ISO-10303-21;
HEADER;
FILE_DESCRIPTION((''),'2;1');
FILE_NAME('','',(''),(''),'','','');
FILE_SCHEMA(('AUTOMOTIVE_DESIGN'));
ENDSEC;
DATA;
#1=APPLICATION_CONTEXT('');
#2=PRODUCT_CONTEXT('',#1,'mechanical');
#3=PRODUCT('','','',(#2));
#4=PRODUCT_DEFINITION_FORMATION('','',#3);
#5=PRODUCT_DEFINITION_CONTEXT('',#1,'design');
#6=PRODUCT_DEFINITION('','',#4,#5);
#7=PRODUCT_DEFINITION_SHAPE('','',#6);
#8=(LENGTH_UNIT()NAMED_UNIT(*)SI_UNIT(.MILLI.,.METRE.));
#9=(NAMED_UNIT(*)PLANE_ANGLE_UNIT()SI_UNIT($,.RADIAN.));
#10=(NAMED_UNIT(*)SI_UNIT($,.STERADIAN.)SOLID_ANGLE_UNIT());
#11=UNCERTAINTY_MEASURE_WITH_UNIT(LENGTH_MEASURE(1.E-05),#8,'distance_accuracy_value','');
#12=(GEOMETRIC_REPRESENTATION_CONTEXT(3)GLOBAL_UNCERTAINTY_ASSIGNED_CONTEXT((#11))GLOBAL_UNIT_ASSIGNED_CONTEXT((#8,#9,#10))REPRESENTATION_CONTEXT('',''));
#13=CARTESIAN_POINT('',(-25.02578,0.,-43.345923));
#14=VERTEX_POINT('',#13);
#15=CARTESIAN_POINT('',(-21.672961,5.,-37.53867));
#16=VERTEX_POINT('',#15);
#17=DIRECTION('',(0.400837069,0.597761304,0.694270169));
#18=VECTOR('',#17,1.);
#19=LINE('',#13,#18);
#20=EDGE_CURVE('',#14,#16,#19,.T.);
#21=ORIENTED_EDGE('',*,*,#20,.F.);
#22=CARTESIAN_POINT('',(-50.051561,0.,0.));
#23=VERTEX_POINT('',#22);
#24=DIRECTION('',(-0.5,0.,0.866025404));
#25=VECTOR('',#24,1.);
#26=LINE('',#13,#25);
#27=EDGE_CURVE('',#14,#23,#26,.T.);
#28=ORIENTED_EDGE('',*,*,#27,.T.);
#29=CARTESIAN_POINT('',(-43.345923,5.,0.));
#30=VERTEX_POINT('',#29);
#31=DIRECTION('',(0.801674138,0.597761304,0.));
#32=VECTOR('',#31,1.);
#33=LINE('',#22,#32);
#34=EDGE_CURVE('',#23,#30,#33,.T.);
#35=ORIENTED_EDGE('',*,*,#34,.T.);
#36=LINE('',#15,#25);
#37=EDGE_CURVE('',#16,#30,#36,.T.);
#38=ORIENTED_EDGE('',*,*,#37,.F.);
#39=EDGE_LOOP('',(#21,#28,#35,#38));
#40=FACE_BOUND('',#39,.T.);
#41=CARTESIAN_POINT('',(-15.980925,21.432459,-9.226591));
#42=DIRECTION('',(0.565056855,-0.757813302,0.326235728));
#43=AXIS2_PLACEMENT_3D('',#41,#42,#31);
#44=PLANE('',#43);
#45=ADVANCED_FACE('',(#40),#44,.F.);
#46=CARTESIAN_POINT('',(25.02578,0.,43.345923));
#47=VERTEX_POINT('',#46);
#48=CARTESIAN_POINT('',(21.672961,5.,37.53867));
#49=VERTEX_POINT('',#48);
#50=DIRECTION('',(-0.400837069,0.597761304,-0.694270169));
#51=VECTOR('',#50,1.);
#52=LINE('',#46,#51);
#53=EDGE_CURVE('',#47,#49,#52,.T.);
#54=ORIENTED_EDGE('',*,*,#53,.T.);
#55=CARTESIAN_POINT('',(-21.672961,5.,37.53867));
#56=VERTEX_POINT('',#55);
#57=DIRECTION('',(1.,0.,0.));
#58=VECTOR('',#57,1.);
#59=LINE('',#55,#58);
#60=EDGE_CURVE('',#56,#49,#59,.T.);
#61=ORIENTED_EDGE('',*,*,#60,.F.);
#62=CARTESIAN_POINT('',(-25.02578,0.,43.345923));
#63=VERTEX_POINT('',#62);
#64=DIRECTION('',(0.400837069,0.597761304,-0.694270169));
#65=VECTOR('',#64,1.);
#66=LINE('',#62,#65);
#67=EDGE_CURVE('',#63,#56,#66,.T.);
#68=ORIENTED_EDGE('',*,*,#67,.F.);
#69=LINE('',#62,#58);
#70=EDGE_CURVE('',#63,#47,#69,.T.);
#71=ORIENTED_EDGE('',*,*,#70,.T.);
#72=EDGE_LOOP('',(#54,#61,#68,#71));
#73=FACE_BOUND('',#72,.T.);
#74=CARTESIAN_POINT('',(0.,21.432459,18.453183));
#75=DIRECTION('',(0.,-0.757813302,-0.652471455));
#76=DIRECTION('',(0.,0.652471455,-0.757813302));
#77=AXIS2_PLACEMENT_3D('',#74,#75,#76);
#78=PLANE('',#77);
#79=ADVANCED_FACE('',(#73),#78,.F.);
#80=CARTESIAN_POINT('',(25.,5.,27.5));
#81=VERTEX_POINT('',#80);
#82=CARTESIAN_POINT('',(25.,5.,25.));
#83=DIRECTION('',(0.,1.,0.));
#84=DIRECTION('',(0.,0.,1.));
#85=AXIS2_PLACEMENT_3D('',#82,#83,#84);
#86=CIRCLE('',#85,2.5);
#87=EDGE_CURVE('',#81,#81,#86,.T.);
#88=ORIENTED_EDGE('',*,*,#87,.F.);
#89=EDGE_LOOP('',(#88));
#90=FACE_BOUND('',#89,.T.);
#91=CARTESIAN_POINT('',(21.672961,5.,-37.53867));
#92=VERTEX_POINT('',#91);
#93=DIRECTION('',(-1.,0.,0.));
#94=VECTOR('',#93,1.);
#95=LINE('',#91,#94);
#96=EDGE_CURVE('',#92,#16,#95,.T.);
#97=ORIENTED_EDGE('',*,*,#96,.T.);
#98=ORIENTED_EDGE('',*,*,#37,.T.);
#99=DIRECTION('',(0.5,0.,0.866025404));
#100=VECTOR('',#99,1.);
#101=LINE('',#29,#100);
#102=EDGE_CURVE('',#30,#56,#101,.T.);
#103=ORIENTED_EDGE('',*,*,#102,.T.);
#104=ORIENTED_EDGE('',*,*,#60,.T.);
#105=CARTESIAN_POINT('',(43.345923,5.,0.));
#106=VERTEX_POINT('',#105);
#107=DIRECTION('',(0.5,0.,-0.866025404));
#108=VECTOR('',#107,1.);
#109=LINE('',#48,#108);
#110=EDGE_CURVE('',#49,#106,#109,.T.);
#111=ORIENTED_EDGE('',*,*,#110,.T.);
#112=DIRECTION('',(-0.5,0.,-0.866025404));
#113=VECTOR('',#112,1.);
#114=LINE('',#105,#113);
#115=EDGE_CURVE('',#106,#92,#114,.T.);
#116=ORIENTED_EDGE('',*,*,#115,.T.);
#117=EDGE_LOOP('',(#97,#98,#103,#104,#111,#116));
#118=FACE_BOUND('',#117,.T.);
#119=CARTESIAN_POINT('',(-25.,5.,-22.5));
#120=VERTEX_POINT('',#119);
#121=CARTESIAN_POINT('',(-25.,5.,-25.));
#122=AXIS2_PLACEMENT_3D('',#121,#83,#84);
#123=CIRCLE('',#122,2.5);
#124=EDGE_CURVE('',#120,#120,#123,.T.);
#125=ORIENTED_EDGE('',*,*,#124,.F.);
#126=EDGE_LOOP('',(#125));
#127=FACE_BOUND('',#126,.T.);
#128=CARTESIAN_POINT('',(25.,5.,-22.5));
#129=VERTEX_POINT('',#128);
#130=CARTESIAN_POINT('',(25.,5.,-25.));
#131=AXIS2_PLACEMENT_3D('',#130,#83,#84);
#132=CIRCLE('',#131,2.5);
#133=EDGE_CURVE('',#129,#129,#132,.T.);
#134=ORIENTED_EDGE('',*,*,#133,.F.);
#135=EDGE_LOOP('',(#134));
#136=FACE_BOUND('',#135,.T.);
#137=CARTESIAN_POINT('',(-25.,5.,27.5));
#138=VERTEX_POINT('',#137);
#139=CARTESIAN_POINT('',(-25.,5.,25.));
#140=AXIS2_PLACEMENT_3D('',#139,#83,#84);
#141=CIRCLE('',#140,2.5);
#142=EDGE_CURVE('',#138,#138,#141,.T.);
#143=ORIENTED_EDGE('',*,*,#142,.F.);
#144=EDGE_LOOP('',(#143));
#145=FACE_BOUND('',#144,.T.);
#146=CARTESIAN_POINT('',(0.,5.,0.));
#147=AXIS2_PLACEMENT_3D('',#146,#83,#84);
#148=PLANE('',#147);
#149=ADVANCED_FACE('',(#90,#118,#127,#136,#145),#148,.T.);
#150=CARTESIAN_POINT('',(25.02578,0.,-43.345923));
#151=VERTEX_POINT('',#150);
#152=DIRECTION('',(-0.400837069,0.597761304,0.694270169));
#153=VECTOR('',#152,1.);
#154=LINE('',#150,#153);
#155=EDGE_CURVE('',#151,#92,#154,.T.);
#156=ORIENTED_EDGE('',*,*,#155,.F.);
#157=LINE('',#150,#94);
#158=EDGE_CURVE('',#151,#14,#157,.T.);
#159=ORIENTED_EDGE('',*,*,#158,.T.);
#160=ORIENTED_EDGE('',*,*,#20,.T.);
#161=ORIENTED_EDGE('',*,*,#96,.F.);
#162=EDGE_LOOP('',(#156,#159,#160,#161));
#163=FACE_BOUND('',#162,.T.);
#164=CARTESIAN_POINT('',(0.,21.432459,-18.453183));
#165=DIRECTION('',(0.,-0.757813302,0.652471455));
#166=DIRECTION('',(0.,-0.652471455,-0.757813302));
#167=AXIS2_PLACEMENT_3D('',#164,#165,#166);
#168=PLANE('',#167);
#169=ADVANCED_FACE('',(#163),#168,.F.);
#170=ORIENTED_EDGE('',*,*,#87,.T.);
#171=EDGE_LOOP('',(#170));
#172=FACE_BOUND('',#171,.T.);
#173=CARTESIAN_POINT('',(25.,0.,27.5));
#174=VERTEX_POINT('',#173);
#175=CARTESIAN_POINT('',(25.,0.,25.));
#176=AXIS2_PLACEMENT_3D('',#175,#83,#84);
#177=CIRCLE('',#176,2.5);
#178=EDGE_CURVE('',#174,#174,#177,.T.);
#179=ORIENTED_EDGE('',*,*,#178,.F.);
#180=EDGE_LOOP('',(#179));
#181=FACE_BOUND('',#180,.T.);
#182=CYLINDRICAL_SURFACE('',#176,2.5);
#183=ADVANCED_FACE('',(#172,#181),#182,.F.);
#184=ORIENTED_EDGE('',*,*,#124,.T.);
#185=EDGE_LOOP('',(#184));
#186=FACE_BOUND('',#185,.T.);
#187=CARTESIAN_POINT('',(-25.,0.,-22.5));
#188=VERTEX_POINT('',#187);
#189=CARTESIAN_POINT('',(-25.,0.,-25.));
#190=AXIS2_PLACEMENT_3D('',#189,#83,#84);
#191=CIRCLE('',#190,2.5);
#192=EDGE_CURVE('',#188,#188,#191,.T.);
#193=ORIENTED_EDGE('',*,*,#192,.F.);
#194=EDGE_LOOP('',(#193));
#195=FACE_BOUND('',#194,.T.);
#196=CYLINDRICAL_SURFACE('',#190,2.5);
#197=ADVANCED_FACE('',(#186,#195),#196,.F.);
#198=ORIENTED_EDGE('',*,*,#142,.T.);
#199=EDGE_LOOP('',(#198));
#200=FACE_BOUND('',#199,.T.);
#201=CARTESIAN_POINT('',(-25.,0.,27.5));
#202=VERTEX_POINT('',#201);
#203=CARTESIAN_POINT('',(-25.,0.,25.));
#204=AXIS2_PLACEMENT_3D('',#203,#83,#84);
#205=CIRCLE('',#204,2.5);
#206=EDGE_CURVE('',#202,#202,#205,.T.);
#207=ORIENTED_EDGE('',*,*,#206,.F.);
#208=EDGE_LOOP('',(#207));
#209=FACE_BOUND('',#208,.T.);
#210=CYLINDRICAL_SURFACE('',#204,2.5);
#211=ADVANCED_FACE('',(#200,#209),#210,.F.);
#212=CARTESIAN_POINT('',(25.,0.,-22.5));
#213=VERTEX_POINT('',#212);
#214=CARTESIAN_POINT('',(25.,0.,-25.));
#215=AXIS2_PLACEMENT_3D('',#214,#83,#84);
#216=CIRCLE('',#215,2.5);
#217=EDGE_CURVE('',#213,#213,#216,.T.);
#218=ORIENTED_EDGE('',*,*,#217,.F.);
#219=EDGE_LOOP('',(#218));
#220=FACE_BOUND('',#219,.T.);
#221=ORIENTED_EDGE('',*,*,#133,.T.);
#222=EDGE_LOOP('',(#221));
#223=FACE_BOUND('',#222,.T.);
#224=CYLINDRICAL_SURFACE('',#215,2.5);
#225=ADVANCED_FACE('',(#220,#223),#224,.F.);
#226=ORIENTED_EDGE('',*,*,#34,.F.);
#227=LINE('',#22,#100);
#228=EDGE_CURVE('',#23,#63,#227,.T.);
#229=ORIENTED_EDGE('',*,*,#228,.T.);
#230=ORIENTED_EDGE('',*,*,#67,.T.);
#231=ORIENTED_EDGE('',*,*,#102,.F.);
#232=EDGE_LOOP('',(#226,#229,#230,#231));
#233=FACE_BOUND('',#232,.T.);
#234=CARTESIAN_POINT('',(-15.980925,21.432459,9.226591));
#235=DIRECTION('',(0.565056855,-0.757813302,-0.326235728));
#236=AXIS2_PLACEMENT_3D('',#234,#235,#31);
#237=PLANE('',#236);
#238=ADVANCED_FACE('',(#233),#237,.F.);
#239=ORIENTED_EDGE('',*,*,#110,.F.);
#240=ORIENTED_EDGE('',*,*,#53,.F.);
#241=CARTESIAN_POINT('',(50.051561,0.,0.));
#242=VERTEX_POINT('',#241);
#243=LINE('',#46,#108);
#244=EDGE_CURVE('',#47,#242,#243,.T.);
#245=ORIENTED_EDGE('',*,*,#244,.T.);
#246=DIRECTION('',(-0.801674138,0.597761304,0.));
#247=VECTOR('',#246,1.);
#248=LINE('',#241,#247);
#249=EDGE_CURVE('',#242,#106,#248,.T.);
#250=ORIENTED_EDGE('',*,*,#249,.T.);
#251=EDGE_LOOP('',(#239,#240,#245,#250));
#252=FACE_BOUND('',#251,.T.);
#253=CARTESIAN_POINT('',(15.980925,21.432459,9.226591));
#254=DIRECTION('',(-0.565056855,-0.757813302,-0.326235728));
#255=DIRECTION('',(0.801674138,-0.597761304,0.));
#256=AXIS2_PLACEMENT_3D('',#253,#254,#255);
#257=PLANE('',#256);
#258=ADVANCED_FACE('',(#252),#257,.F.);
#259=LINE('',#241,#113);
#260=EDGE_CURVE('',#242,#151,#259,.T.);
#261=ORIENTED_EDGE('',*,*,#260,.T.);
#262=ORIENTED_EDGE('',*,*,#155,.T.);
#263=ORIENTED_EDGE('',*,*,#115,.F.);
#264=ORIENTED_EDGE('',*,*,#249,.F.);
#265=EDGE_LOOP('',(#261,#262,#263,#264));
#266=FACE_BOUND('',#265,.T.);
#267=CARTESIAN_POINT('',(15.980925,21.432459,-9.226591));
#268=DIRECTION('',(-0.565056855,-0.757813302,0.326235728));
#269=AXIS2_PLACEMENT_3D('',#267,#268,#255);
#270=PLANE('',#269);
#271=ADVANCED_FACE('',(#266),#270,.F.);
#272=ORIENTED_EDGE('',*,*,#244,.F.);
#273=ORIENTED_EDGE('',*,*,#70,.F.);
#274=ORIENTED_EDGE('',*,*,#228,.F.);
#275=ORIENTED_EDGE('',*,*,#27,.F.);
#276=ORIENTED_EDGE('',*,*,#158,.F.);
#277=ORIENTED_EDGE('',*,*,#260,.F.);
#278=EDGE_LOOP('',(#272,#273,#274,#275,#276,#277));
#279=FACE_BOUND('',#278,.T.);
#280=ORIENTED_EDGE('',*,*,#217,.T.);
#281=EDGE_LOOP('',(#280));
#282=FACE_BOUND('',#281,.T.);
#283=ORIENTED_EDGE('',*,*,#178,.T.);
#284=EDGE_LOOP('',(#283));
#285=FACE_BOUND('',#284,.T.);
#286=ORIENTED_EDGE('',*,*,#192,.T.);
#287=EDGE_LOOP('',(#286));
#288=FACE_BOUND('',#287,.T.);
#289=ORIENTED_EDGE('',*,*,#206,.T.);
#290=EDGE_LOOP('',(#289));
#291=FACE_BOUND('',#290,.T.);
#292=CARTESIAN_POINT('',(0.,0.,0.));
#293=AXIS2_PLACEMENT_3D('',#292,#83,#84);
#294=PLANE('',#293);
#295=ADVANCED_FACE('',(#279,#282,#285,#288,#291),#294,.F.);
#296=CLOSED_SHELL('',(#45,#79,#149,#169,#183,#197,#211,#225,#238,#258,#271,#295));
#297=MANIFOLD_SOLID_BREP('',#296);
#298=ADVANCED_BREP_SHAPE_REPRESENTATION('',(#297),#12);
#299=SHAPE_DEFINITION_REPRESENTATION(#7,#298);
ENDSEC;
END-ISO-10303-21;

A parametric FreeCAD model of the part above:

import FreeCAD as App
import Part
import Sketcher
from FreeCAD import Vector
Q = App.Units.Quantity


def add_polygon(sketch, points):
    """Adds a closed chain of lines whose ends are joined by coincident constraints."""
    first, n = sketch.GeometryCount, len(points)
    for a, b in zip(points, points[1:] + points[:1]):
        sketch.addGeometry(Part.LineSegment(App.Vector(*a, 0), App.Vector(*b, 0)), False)
    for i in range(n):
        sketch.addConstraint(Sketcher.Constraint("Coincident", first + i, 2, first + (i + 1) % n, 1))

doc = App.newDocument("Part")
params = doc.addObject("Spreadsheet::Sheet", "Params")
for row, (alias, value) in enumerate([
    ("sketch3_diameter", "5 mm"),
    ("pocket1_length", "5 mm"),
    ("sketch4_diameter", "5 mm"),
    ("pocket2_length", "5 mm"),
    ("sketch5_diameter", "5 mm"),
    ("pocket3_length", "5 mm"),
    ("sketch6_diameter", "5 mm"),
    ("pocket4_length", "5 mm"),
], start=1):
    params.set(f"A{row}", alias)
    params.set(f"B{row}", "=" + value)
    params.setAlias(f"B{row}", alias)

body = doc.addObject("PartDesign::Body", "Body")

# Sketch on XZ plane
sketch1 = doc.addObject("Sketcher::SketchObject", "Sketch")
body.addObject(sketch1)
sketch1.AttachmentSupport = (doc.XZ_Plane, [""])
sketch1.MapMode = "FlatFace"
add_polygon(sketch1, [(50, 0), (25, -43), (-25, -43), (-50, 0), (-25, 43), (25, 43)])  # lines 0-5
sketch1.addConstraint([
    Sketcher.Constraint("Horizontal", 1),
    Sketcher.Constraint("Horizontal", 4),
    Sketcher.Constraint("Symmetric", 0, 2, 3, 2, -1, 1),
    Sketcher.Constraint("Symmetric", 2, 2, 5, 2, -1, 1),
    Sketcher.Constraint("PointOnObject", 2, 2, -1),
    Sketcher.Constraint("Parallel", 2, 5),
    Sketcher.Constraint("Vertical", 1, 2, 3, 2),
    Sketcher.Constraint("Angle", 0, Q("-120 deg")),
    Sketcher.Constraint("DistanceX", 1, 2, 1, 1, 50.051561),
    Sketcher.Constraint("Distance", 0, 50.051561),
])

# Sketch on XZ plane
sketch2 = doc.addObject("Sketcher::SketchObject", "Sketch001")
body.addObject(sketch2)
sketch2.AttachmentSupport = (doc.XZ_Plane, [""])
sketch2.MapMode = "FlatFace"
sketch2.AttachmentOffset = App.Placement(Vector(0, 0, -5), App.Rotation())
add_polygon(sketch2, [(43, 0), (22, -38), (-22, -38), (-43, 0), (-22, 38), (22, 38)])  # lines 0-5
sketch2.addConstraint([
    Sketcher.Constraint("Horizontal", 1),
    Sketcher.Constraint("Horizontal", 4),
    Sketcher.Constraint("Symmetric", 0, 2, 3, 2, -1, 1),
    Sketcher.Constraint("Symmetric", 2, 2, 5, 2, -1, 1),
    Sketcher.Constraint("PointOnObject", 2, 2, -1),
    Sketcher.Constraint("Parallel", 2, 5),
    Sketcher.Constraint("Vertical", 1, 2, 3, 2),
    Sketcher.Constraint("Angle", 0, Q("-120 deg")),
    Sketcher.Constraint("DistanceX", 1, 2, 1, 1, 43.345923),
    Sketcher.Constraint("DistanceY", 0, 2, -1, 1, 37.53867),
])

additiveloft = doc.addObject("PartDesign::AdditiveLoft", "AdditiveLoft")
body.addObject(additiveloft)
additiveloft.Profile = sketch1
additiveloft.Sections = [sketch2]

# Sketch on XZ plane
sketch3 = doc.addObject("Sketcher::SketchObject", "Sketch002")
body.addObject(sketch3)
sketch3.AttachmentSupport = (doc.XZ_Plane, [""])
sketch3.MapMode = "FlatFace"
sketch3.AttachmentOffset = App.Placement(Vector(0, 0, -5), App.Rotation())
sketch3.addGeometry(Part.Circle(Vector(-25, -25, 0), Vector(0, 0, 1), 2.5), False)
sketch3.addConstraint([
    Sketcher.Constraint("Diameter", 0, 5.0),
    Sketcher.Constraint("DistanceX", 0, 3, -1, 1, 25.0),
    Sketcher.Constraint("DistanceY", 0, 3, -1, 1, 25.0),
])
sketch3.setExpression("Constraints[0]", "Params.sketch3_diameter")
pocket1 = doc.addObject("PartDesign::Pocket", "Pocket")
body.addObject(pocket1)
pocket1.Profile = sketch3
pocket1.setExpression("Length", "Params.pocket1_length")
pocket1.Reversed = True

# Sketch on XZ plane
sketch4 = doc.addObject("Sketcher::SketchObject", "Sketch003")
body.addObject(sketch4)
sketch4.AttachmentSupport = (doc.XZ_Plane, [""])
sketch4.MapMode = "FlatFace"
sketch4.AttachmentOffset = App.Placement(Vector(0, 0, -5), App.Rotation())
sketch4.addGeometry(Part.Circle(Vector(25, -25, 0), Vector(0, 0, 1), 2.5), False)
sketch4.addConstraint([
    Sketcher.Constraint("Diameter", 0, 5.0),
    Sketcher.Constraint("DistanceX", -1, 1, 0, 3, 25.0),
    Sketcher.Constraint("DistanceY", 0, 3, -1, 1, 25.0),
])
sketch4.setExpression("Constraints[0]", "Params.sketch4_diameter")
pocket2 = doc.addObject("PartDesign::Pocket", "Pocket001")
body.addObject(pocket2)
pocket2.Profile = sketch4
pocket2.setExpression("Length", "Params.pocket2_length")
pocket2.Reversed = True

# Sketch on XZ plane
sketch5 = doc.addObject("Sketcher::SketchObject", "Sketch004")
body.addObject(sketch5)
sketch5.AttachmentSupport = (doc.XZ_Plane, [""])
sketch5.MapMode = "FlatFace"
sketch5.AttachmentOffset = App.Placement(Vector(0, 0, -5), App.Rotation())
sketch5.addGeometry(Part.Circle(Vector(-25, 25, 0), Vector(0, 0, 1), 2.5), False)
sketch5.addConstraint([
    Sketcher.Constraint("Diameter", 0, 5.0),
    Sketcher.Constraint("DistanceX", 0, 3, -1, 1, 25.0),
    Sketcher.Constraint("DistanceY", -1, 1, 0, 3, 25.0),
])
sketch5.setExpression("Constraints[0]", "Params.sketch5_diameter")
pocket3 = doc.addObject("PartDesign::Pocket", "Pocket002")
body.addObject(pocket3)
pocket3.Profile = sketch5
pocket3.setExpression("Length", "Params.pocket3_length")
pocket3.Reversed = True

# Sketch on XZ plane
sketch6 = doc.addObject("Sketcher::SketchObject", "Sketch005")
body.addObject(sketch6)
sketch6.AttachmentSupport = (doc.XZ_Plane, [""])
sketch6.MapMode = "FlatFace"
sketch6.AttachmentOffset = App.Placement(Vector(0, 0, -5), App.Rotation())
sketch6.addGeometry(Part.Circle(Vector(25, 25, 0), Vector(0, 0, 1), 2.5), False)
sketch6.addConstraint([
    Sketcher.Constraint("Diameter", 0, 5.0),
    Sketcher.Constraint("DistanceX", -1, 1, 0, 3, 25.0),
    Sketcher.Constraint("DistanceY", -1, 1, 0, 3, 25.0),
])
sketch6.setExpression("Constraints[0]", "Params.sketch6_diameter")
pocket4 = doc.addObject("PartDesign::Pocket", "Pocket003")
body.addObject(pocket4)
pocket4.Profile = sketch6
pocket4.setExpression("Length", "Params.pocket4_length")
pocket4.Reversed = True

doc.recompute()
